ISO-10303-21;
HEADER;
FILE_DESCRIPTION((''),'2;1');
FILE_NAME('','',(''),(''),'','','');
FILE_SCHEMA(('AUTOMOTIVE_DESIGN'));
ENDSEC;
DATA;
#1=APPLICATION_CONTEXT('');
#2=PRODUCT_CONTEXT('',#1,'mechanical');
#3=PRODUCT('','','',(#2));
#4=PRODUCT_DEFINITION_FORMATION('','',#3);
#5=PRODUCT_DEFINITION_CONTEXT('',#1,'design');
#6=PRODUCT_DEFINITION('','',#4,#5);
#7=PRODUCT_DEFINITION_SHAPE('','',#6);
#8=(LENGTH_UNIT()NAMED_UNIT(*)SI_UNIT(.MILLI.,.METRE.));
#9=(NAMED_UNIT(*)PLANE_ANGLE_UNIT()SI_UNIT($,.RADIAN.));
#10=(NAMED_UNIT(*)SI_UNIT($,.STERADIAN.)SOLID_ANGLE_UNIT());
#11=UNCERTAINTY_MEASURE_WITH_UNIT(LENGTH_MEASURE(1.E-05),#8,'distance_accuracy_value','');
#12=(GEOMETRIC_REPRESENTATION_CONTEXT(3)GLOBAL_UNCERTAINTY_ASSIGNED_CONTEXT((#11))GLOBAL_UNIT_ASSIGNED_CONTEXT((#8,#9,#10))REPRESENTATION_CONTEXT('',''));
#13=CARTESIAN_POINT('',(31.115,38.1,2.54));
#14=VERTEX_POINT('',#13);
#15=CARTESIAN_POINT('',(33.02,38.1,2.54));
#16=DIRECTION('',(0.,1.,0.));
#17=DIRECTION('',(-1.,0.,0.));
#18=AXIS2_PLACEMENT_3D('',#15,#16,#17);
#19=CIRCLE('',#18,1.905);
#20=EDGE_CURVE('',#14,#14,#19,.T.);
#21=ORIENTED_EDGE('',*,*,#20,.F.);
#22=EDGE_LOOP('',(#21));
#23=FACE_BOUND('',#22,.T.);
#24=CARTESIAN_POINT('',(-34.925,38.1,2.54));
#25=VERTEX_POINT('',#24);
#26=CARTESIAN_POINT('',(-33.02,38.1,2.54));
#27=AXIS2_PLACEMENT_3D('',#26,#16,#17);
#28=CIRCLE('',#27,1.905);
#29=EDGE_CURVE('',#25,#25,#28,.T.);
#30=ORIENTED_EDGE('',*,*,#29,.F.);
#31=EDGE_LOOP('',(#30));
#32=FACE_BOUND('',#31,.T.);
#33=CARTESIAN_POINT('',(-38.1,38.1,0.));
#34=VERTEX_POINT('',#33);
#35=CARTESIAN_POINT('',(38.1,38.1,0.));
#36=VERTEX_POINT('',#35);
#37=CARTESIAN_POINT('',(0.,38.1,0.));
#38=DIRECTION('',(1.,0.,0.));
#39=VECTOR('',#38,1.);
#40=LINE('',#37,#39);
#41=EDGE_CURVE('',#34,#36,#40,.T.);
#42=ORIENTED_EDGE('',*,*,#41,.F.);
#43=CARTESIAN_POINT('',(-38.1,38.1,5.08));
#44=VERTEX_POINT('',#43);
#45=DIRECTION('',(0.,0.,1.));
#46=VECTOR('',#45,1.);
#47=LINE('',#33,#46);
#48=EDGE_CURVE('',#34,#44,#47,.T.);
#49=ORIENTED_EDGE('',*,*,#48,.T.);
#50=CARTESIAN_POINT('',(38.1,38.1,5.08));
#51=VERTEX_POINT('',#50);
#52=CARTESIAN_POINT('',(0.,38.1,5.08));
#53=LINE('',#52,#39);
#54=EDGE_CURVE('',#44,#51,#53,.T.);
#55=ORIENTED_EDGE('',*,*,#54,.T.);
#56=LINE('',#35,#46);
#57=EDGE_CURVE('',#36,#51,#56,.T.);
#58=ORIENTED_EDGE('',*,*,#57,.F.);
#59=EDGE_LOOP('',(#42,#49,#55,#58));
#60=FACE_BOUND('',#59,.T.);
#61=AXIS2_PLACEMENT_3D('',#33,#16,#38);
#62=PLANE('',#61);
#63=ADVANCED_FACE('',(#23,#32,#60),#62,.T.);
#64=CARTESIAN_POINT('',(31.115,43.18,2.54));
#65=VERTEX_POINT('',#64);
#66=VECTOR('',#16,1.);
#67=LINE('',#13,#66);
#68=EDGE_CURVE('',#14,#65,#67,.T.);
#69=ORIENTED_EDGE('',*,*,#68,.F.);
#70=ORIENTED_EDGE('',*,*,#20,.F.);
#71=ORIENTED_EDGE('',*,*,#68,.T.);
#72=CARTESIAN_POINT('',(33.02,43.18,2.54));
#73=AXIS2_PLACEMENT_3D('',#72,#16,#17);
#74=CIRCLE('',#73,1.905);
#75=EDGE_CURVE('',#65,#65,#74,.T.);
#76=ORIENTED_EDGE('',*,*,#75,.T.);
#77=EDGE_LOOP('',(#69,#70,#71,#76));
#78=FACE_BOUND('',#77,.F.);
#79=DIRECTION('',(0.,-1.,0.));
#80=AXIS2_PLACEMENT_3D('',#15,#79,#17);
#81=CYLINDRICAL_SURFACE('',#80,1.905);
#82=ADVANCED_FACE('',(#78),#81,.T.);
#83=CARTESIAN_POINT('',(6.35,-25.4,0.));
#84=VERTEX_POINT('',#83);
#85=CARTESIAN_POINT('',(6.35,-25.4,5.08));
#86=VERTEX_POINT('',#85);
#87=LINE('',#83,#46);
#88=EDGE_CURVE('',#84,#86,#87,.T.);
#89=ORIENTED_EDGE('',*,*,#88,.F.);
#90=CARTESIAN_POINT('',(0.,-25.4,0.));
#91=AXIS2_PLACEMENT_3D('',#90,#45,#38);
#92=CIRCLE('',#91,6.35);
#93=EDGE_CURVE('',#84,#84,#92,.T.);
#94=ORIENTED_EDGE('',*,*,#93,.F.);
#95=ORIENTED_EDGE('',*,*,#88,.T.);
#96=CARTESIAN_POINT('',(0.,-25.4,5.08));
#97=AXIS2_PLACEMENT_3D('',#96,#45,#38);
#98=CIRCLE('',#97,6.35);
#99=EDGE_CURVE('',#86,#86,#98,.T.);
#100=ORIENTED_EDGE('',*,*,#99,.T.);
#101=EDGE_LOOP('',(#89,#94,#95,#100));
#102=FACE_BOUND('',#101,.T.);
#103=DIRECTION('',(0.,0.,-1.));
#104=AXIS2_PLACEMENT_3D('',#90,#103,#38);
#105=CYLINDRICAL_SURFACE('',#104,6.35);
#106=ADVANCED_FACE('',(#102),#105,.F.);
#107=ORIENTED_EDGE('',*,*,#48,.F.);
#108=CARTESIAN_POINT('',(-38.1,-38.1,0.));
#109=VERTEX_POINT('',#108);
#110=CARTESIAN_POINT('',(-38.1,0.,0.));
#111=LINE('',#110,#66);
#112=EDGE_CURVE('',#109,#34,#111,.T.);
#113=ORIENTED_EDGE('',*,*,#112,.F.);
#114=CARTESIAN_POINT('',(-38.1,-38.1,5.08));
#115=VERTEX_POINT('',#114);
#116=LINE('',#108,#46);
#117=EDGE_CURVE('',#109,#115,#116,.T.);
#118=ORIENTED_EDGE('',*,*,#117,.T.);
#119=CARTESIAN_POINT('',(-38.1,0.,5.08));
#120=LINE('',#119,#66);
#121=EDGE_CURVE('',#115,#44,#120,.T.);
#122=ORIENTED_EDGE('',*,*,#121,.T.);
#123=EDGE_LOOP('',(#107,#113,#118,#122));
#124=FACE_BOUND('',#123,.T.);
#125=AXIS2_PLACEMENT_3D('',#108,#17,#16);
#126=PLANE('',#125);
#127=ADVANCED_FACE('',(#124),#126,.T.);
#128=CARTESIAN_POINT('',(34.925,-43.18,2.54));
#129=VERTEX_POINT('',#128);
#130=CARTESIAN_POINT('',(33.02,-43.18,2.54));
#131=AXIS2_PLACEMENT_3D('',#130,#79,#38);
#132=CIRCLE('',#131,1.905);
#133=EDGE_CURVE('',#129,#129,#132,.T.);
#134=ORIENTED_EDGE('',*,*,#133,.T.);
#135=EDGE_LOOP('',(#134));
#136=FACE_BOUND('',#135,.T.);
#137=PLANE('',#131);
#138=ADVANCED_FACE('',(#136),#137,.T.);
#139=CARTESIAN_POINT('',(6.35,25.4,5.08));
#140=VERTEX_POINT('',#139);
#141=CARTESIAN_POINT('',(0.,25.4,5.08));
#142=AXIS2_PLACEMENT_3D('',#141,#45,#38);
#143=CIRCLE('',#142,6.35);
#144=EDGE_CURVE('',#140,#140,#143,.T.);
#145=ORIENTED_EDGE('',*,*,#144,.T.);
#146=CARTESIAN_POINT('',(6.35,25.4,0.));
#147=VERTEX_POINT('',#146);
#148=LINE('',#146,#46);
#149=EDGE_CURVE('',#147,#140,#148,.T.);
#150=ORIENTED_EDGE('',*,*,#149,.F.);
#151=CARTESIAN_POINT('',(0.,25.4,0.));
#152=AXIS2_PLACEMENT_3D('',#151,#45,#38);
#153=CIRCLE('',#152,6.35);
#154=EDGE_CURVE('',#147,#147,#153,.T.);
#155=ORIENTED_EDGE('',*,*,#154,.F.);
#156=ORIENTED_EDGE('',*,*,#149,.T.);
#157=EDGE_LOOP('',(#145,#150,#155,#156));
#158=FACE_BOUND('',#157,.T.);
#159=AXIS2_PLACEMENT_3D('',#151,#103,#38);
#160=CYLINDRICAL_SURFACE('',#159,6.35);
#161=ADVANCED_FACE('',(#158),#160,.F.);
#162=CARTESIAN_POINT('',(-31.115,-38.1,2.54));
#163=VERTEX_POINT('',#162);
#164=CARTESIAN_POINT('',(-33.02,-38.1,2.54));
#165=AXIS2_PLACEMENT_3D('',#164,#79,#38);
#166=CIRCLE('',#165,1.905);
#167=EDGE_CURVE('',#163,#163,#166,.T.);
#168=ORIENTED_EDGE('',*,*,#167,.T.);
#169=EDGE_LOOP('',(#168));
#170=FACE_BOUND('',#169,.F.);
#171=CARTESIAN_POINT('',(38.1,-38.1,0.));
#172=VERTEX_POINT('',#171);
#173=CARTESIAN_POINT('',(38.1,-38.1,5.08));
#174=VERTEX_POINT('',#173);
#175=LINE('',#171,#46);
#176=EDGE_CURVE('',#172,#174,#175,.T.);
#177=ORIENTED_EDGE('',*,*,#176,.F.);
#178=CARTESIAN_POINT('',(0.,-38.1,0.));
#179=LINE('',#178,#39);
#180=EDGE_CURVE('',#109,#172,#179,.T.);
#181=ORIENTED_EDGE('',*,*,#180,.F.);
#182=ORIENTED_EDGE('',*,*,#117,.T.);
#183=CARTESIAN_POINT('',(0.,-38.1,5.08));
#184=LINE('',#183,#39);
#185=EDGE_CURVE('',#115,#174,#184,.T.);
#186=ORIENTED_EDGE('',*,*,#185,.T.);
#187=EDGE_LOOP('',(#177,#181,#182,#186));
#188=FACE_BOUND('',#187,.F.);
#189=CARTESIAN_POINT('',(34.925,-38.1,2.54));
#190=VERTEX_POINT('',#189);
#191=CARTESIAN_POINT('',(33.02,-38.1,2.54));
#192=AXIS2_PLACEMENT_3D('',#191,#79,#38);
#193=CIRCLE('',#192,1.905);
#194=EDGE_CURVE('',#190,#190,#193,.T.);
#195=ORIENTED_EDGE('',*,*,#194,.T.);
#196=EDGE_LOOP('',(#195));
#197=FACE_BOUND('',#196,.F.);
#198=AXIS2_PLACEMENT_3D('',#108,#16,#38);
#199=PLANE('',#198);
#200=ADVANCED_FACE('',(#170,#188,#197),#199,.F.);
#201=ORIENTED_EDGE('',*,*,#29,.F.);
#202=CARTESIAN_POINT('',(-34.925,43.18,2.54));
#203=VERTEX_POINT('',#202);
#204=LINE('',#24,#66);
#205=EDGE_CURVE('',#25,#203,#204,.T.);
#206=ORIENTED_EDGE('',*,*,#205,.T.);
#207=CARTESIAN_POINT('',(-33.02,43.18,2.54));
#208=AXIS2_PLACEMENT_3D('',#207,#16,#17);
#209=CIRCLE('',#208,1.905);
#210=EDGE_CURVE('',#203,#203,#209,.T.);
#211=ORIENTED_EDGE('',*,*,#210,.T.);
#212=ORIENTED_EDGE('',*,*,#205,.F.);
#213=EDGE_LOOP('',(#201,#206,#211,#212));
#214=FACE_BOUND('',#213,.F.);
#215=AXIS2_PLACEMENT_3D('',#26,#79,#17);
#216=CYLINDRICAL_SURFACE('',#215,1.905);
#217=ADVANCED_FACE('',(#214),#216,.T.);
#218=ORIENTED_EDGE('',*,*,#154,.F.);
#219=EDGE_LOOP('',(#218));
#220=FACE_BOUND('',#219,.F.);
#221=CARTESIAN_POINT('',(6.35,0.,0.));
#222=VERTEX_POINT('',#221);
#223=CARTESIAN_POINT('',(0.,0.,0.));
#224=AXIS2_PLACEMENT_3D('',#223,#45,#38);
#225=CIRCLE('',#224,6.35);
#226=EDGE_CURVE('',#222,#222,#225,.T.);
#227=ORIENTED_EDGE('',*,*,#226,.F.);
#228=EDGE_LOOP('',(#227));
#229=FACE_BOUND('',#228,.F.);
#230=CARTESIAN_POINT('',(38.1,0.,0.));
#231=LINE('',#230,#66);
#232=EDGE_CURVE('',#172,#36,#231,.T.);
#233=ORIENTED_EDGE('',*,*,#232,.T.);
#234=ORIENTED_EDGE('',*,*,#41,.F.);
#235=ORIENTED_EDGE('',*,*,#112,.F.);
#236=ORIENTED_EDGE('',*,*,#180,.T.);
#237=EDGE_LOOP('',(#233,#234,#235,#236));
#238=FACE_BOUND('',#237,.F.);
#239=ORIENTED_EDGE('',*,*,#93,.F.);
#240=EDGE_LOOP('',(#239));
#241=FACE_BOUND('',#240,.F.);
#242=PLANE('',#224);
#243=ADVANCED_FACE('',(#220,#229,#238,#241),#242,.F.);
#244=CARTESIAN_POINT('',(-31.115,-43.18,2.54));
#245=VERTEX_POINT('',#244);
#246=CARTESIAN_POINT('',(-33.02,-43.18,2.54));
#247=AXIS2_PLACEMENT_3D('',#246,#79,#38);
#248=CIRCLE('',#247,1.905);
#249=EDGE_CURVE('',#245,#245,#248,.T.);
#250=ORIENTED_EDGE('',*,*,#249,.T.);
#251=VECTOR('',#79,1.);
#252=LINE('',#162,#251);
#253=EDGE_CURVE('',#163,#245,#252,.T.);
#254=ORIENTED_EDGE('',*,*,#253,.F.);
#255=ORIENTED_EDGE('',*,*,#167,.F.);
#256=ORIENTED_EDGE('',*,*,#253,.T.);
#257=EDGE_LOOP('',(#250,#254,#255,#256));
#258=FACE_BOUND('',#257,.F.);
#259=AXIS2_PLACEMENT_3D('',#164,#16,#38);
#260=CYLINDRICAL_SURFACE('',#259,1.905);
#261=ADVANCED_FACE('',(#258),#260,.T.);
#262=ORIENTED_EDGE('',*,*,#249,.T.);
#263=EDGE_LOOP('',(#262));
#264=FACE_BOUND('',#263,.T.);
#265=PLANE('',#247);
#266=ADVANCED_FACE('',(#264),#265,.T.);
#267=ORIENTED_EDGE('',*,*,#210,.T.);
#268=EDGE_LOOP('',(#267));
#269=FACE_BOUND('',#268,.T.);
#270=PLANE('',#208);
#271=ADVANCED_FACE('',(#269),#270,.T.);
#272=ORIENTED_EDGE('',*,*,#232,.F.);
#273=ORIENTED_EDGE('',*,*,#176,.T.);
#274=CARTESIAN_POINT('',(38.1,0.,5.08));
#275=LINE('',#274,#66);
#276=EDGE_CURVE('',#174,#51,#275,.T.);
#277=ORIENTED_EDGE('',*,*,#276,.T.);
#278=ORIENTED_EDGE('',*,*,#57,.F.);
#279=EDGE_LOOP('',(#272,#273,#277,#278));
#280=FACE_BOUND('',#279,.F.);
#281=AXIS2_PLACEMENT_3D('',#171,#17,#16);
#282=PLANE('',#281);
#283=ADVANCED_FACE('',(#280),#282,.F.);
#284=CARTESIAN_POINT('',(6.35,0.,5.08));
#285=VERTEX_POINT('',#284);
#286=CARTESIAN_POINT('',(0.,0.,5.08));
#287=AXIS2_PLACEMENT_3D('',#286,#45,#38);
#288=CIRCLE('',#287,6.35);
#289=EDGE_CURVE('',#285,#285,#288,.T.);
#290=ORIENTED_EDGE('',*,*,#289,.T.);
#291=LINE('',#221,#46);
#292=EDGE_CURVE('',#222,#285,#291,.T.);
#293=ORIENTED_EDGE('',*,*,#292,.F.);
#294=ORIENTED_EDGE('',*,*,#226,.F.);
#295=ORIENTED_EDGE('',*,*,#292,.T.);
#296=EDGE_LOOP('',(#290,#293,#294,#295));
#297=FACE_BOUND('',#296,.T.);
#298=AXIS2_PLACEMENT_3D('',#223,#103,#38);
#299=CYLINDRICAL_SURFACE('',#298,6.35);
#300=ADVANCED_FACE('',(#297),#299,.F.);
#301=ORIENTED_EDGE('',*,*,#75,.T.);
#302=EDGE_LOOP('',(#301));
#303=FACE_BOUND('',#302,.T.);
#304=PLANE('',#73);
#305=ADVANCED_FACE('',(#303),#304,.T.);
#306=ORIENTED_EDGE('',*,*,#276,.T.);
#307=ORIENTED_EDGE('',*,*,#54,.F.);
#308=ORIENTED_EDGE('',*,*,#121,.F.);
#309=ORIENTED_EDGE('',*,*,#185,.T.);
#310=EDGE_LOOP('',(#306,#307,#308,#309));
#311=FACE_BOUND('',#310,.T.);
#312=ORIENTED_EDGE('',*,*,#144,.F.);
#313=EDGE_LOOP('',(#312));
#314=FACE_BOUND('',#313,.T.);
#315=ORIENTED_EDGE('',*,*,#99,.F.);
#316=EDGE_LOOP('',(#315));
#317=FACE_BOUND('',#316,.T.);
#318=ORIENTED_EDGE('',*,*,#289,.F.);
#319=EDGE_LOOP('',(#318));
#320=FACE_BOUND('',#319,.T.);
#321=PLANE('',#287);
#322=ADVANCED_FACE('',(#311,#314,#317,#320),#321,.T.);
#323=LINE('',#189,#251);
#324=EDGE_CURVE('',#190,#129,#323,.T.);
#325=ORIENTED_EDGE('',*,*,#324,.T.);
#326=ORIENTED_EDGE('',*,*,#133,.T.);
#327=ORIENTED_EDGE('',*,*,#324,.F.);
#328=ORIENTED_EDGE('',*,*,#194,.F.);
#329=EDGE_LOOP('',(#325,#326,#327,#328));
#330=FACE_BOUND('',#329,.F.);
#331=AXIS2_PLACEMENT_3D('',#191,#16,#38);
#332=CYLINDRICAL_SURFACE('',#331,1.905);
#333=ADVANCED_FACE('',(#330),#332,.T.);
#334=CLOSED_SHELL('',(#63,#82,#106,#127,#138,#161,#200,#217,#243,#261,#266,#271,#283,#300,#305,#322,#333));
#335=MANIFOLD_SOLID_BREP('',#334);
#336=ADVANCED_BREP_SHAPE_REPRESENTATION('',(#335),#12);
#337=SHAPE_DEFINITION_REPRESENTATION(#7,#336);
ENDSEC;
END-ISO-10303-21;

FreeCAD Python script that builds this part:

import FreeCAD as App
import Part
import Sketcher
Q = App.Units.Quantity


def add_polygon(sketch, points):
    """Adds a closed chain of lines whose ends are joined by coincident constraints."""
    first, n = sketch.GeometryCount, len(points)
    for a, b in zip(points, points[1:] + points[:1]):
        sketch.addGeometry(Part.LineSegment(App.Vector(*a, 0), App.Vector(*b, 0)), False)
    for i in range(n):
        sketch.addConstraint(Sketcher.Constraint("Coincident", first + i, 2, first + (i + 1) % n, 1))

doc = App.newDocument("Part")
params = doc.addObject("Spreadsheet::Sheet", "Params")
for row, (alias, value) in enumerate([
    ("sketch1_diameter", "0.5 in"),
    ("sketch1_width", "3 in"),
    ("pad1_length", "0.2 in"),
    ("sketch2_diameter", "0.15 in"),
    ("pad2_length", "0.2 in"),
    ("sketch3_diameter", "0.15 in"),
    ("pad3_length", "0.2 in"),
], start=1):
    params.set(f"A{row}", alias)
    params.set(f"B{row}", "=" + value)
    params.setAlias(f"B{row}", alias)

body = doc.addObject("PartDesign::Body", "Body")

# Sketch on XY plane
sketch1 = body.newObject("Sketcher::SketchObject", "Sketch")
sketch1.AttachmentSupport = (doc.getObject("XY_Plane"), [""])
sketch1.MapMode = "FlatFace"
add_polygon(sketch1, [(-38, 38), (-38, -38), (38, -38), (38, 38)])  # lines 0-3
sketch1.addGeometry(Part.Circle(App.Vector(0, -25, 0), App.Vector(0, 0, 1), 6), False)  # 4
sketch1.addGeometry(Part.Circle(App.Vector(0, 0, 0), App.Vector(0, 0, 1), 6), False)  # 5
sketch1.addGeometry(Part.Circle(App.Vector(0, 25, 0), App.Vector(0, 0, 1), 6), False)  # 6
sketch1.addConstraint([
    Sketcher.Constraint("Vertical", 0),
    Sketcher.Constraint("Horizontal", 1),
    Sketcher.Constraint("Vertical", 2),
    Sketcher.Constraint("Horizontal", 3),
    Sketcher.Constraint("Coincident", 5, 3, -1, 1),
    Sketcher.Constraint("Equal", 4, 5),
    Sketcher.Constraint("Equal", 5, 6),
    Sketcher.Constraint("Symmetric", 4, 3, 6, 3, -1, 1),
    Sketcher.Constraint("Symmetric", 0, 2, 2, 2, -1, 1),
    Sketcher.Constraint("PointOnObject", 4, 3, -2),
    Sketcher.Constraint("Equal", 3, 0),
    Sketcher.Constraint("Diameter", 4, Q("0.5 in")),
    Sketcher.Constraint("DistanceX", 1, 1, 1, 2, Q("3 in")),
    Sketcher.Constraint("DistanceY", 4, 3, -1, 1, Q("1 in")),
])
sketch1.setExpression("Constraints[15]", "Params.sketch1_diameter")
sketch1.setExpression("Constraints[16]", "Params.sketch1_width")
pad1 = body.newObject("PartDesign::Pad", "Pad")
pad1.Profile = sketch1
pad1.setExpression("Length", "Params.pad1_length")

# Sketch on XZ plane
sketch2 = body.newObject("Sketcher::SketchObject", "Sketch001")
sketch2.AttachmentSupport = (doc.getObject("XZ_Plane"), [""])
sketch2.MapMode = "FlatFace"
sketch2.AttachmentOffset = App.Placement(App.Vector(0, 0, 1.5 * 25.4), App.Rotation())
sketch2.addGeometry([
    Part.Circle(App.Vector(-33, 2.5, 0), App.Vector(0, 0, 1), 1.9),
    Part.Circle(App.Vector(33, 2.5, 0), App.Vector(0, 0, 1), 1.9),
], False)
sketch2.addConstraint([
    Sketcher.Constraint("Equal", 0, 1),
    Sketcher.Constraint("Symmetric", 0, 3, 1, 3, -2),
    Sketcher.Constraint("Diameter", 0, Q("0.15 in")),
    Sketcher.Constraint("DistanceX", 0, 3, -1, 1, Q("1.3 in")),
    Sketcher.Constraint("DistanceY", -1, 1, 0, 3, Q("0.1 in")),
])
sketch2.setExpression("Constraints[2]", "Params.sketch2_diameter")
pad2 = body.newObject("PartDesign::Pad", "Pad001")
pad2.Profile = sketch2
pad2.setExpression("Length", "Params.pad2_length")

# Sketch on XZ plane
sketch3 = body.newObject("Sketcher::SketchObject", "Sketch002")
sketch3.AttachmentSupport = (doc.getObject("XZ_Plane"), [""])
sketch3.MapMode = "FlatFace"
sketch3.AttachmentOffset = App.Placement(App.Vector(0, 0, -1.5 * 25.4), App.Rotation())
sketch3.addGeometry([
    Part.Circle(App.Vector(33, 2.5, 0), App.Vector(0, 0, 1), 1.9),
    Part.Circle(App.Vector(-33, 2.5, 0), App.Vector(0, 0, 1), 1.9),
], False)
sketch3.addConstraint([
    Sketcher.Constraint("Equal", 0, 1),
    Sketcher.Constraint("Symmetric", 0, 3, 1, 3, -2),
    Sketcher.Constraint("Diameter", 0, Q("0.15 in")),
    Sketcher.Constraint("DistanceX", -1, 1, 0, 3, Q("1.3 in")),
    Sketcher.Constraint("DistanceY", -1, 1, 0, 3, Q("0.1 in")),
])
sketch3.setExpression("Constraints[2]", "Params.sketch3_diameter")
pad3 = body.newObject("PartDesign::Pad", "Pad002")
pad3.Profile = sketch3
pad3.setExpression("Length", "Params.pad3_length")
pad3.Reversed = True

doc.recompute()
